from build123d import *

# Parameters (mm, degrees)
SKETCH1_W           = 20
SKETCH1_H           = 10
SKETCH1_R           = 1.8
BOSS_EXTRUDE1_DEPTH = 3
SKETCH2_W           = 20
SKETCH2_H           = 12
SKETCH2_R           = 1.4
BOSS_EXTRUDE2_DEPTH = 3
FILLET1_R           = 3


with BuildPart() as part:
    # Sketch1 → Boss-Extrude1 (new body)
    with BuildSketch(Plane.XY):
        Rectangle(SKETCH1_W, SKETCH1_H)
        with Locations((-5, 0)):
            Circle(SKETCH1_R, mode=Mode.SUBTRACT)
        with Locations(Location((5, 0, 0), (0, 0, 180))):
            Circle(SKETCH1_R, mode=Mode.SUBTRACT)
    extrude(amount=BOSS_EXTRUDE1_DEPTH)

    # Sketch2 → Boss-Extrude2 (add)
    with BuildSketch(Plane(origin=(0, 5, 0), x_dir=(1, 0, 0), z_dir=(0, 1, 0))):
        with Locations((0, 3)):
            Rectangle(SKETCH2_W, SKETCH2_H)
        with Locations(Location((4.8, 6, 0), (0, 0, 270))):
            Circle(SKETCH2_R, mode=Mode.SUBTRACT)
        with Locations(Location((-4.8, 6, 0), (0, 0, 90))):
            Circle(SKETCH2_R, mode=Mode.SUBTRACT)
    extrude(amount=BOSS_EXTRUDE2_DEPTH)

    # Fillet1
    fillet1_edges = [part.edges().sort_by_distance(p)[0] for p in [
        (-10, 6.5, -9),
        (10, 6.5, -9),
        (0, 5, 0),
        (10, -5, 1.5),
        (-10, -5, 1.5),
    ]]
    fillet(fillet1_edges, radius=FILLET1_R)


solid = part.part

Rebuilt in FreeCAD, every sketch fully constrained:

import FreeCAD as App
import Part
import Sketcher


def edges_at(feature, points):
    """Names of the edges that pass closest to the given points."""
    edges = feature.Shape.Edges
    near = lambda p: min(range(len(edges)), key=lambda i: edges[i].distToShape(Part.Vertex(*p))[0])
    return sorted({f"Edge{near(p) + 1}" for p in points})

doc = App.newDocument("Part")
body = doc.addObject("PartDesign::Body", "Body")

# Sketch on XY plane
sketch1 = doc.addObject("Sketcher::SketchObject", "Sketch")
body.addObject(sketch1)
sketch1.AttachmentSupport = (doc.XY_Plane, [""])
sketch1.MapMode = "FlatFace"
sketch1.addGeometry(Part.LineSegment(App.Vector(-10, 5, 0), App.Vector(-10, -5, 0)), False)
sketch1.addGeometry(Part.LineSegment(App.Vector(-10, -5, 0), App.Vector(10, -5, 0)), False)
sketch1.addGeometry(Part.LineSegment(App.Vector(10, -5, 0), App.Vector(10, 5, 0)), False)
sketch1.addGeometry(Part.LineSegment(App.Vector(10, 5, 0), App.Vector(-10, 5, 0)), False)
sketch1.addGeometry(Part.Circle(App.Vector(-5, 0, 0), App.Vector(0, 0, 1), 1.8), False)
sketch1.addGeometry(Part.Circle(App.Vector(5, 0, 0), App.Vector(0, 0, 1), 1.8), False)
sketch1.addConstraint(Sketcher.Constraint("Coincident", 0, 2, 1, 1))
sketch1.addConstraint(Sketcher.Constraint("Coincident", 1, 2, 2, 1))
sketch1.addConstraint(Sketcher.Constraint("Coincident", 2, 2, 3, 1))
sketch1.addConstraint(Sketcher.Constraint("Coincident", 3, 2, 0, 1))
sketch1.addConstraint(Sketcher.Constraint("Vertical", 0))
sketch1.addConstraint(Sketcher.Constraint("Horizontal", 1))
sketch1.addConstraint(Sketcher.Constraint("Vertical", 2))
sketch1.addConstraint(Sketcher.Constraint("Horizontal", 3))
sketch1.addConstraint(Sketcher.Constraint("Equal", 4, 5))
sketch1.addConstraint(Sketcher.Constraint("Symmetric", 4, 3, 5, 3, -1, 1))
sketch1.addConstraint(Sketcher.Constraint("Symmetric", 0, 2, 2, 2, -1, 1))
sketch1.addConstraint(Sketcher.Constraint("PointOnObject", 4, 3, -1))
sketch1.addConstraint(Sketcher.Constraint("Diameter", 4, 3.6))
sketch1.addConstraint(Sketcher.Constraint("DistanceX", 1, 1, 1, 2, 20.0))
sketch1.addConstraint(Sketcher.Constraint("DistanceY", 0, 2, 0, 1, 10.0))
sketch1.addConstraint(Sketcher.Constraint("DistanceX", 4, 3, -1, 1, 5.0))
pad1 = doc.addObject("PartDesign::Pad", "Pad")
body.addObject(pad1)
pad1.Profile = sketch1
pad1.Length = 3

# Sketch on XZ plane
sketch2 = doc.addObject("Sketcher::SketchObject", "Sketch001")
body.addObject(sketch2)
sketch2.AttachmentSupport = (doc.XZ_Plane, [""])
sketch2.MapMode = "FlatFace"
sketch2.AttachmentOffset = App.Placement(App.Vector(0, 0, -5), App.Rotation())
sketch2.addGeometry(Part.LineSegment(App.Vector(-10, -9, 0), App.Vector(-10, 3, 0)), False)
sketch2.addGeometry(Part.LineSegment(App.Vector(-10, 3, 0), App.Vector(10, 3, 0)), False)
sketch2.addGeometry(Part.LineSegment(App.Vector(10, 3, 0), App.Vector(10, -9, 0)), False)
sketch2.addGeometry(Part.LineSegment(App.Vector(10, -9, 0), App.Vector(-10, -9, 0)), False)
sketch2.addGeometry(Part.Circle(App.Vector(-4.8, -6, 0), App.Vector(0, 0, 1), 1.4), False)
sketch2.addGeometry(Part.Circle(App.Vector(4.8, -6, 0), App.Vector(0, 0, 1), 1.4), False)
sketch2.addConstraint(Sketcher.Constraint("Coincident", 0, 2, 1, 1))
sketch2.addConstraint(Sketcher.Constraint("Coincident", 1, 2, 2, 1))
sketch2.addConstraint(Sketcher.Constraint("Coincident", 2, 2, 3, 1))
sketch2.addConstraint(Sketcher.Constraint("Coincident", 3, 2, 0, 1))
sketch2.addConstraint(Sketcher.Constraint("Vertical", 0))
sketch2.addConstraint(Sketcher.Constraint("Horizontal", 1))
sketch2.addConstraint(Sketcher.Constraint("Vertical", 2))
sketch2.addConstraint(Sketcher.Constraint("Horizontal", 3))
sketch2.addConstraint(Sketcher.Constraint("Equal", 4, 5))
sketch2.addConstraint(Sketcher.Constraint("Symmetric", 4, 3, 5, 3, -2))
sketch2.addConstraint(Sketcher.Constraint("Diameter", 4, 2.8))
sketch2.addConstraint(Sketcher.Constraint("DistanceX", 1, 1, 1, 2, 20.0))
sketch2.addConstraint(Sketcher.Constraint("DistanceY", 0, 1, 0, 2, 12.0))
sketch2.addConstraint(Sketcher.Constraint("DistanceY", 4, 3, -1, 1, 6.0))
sketch2.addConstraint(Sketcher.Constraint("DistanceX", 0, 2, -1, 1, 10.0))
sketch2.addConstraint(Sketcher.Constraint("DistanceY", -1, 1, 0, 2, 3.0))
sketch2.addConstraint(Sketcher.Constraint("DistanceX", 4, 3, -1, 1, 4.8))
pad2 = doc.addObject("PartDesign::Pad", "Pad001")
body.addObject(pad2)
pad2.Profile = sketch2
pad2.Length = 3
pad2.Reversed = True
doc.recompute()

fillet = doc.addObject("PartDesign::Fillet", "Fillet")
body.addObject(fillet)
fillet.Base = (pad2, edges_at(pad2, [
    (-10, 6.5, -9),
    (10, 6.5, -9),
    (0, 5, 0),
    (10, -5, 1.5),
    (-10, -5, 1.5),
]))
fillet.Radius = 3

doc.recompute()
